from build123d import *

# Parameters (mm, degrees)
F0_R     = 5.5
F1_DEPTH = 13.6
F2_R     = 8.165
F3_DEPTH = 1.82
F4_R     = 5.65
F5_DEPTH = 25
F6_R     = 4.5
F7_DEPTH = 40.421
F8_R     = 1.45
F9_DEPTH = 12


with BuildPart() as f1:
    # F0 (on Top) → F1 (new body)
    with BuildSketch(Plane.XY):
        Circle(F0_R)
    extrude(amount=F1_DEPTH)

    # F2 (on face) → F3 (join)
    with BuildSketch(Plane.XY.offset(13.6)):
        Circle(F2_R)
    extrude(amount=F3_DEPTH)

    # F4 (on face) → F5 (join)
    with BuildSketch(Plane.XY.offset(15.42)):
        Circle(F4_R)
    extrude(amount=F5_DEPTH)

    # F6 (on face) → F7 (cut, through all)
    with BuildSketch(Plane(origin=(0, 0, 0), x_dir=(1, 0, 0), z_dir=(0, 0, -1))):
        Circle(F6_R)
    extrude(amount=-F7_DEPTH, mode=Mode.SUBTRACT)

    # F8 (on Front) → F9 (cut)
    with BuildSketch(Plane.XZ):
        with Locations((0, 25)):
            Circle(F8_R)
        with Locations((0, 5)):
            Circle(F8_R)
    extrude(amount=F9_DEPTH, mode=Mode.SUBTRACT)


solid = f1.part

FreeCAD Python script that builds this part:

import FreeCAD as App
import Part
import Sketcher
Q = App.Units.Quantity

doc = App.newDocument("Part")
body = doc.addObject("PartDesign::Body", "Body")

# Sketch on XY plane
sketch1 = body.newObject("Sketcher::SketchObject", "Sketch")
sketch1.AttachmentSupport = (doc.getObject("XY_Plane"), [""])
sketch1.MapMode = "FlatFace"
sketch1.addGeometry(Part.Circle(App.Vector(0, 0, 0), App.Vector(0, 0, 1), 6), False)
sketch1.addConstraint(Sketcher.Constraint("Coincident", 0, 3, -1, 1))
sketch1.addConstraint(Sketcher.Constraint("Diameter", 0, Q("11 mm")))
pad1 = body.newObject("PartDesign::Pad", "Pad")
pad1.Profile = sketch1
pad1.Length = 13.6

# Sketch on XY plane
sketch2 = body.newObject("Sketcher::SketchObject", "Sketch001")
sketch2.AttachmentSupport = (doc.getObject("XY_Plane"), [""])
sketch2.MapMode = "FlatFace"
sketch2.AttachmentOffset = App.Placement(App.Vector(0, 0, 13.6), App.Rotation())
sketch2.addGeometry(Part.Circle(App.Vector(0, 0, 0), App.Vector(0, 0, 1), 8), False)
sketch2.addConstraint(Sketcher.Constraint("Coincident", 0, 3, -1, 1))
sketch2.addConstraint(Sketcher.Constraint("Diameter", 0, Q("16.33 mm")))
pad2 = body.newObject("PartDesign::Pad", "Pad001")
pad2.Profile = sketch2
pad2.Length = 1.82

# Sketch on XY plane
sketch3 = body.newObject("Sketcher::SketchObject", "Sketch002")
sketch3.AttachmentSupport = (doc.getObject("XY_Plane"), [""])
sketch3.MapMode = "FlatFace"
sketch3.AttachmentOffset = App.Placement(App.Vector(0, 0, 15.42), App.Rotation())
sketch3.addGeometry(Part.Circle(App.Vector(0, 0, 0), App.Vector(0, 0, 1), 6), False)
sketch3.addConstraint(Sketcher.Constraint("Coincident", 0, 3, -1, 1))
sketch3.addConstraint(Sketcher.Constraint("Diameter", 0, Q("11.3 mm")))
pad3 = body.newObject("PartDesign::Pad", "Pad002")
pad3.Profile = sketch3
pad3.Length = 25

# Sketch on XY plane
sketch4 = body.newObject("Sketcher::SketchObject", "Sketch003")
sketch4.AttachmentSupport = (doc.getObject("XY_Plane"), [""])
sketch4.MapMode = "FlatFace"
sketch4.addGeometry(Part.Circle(App.Vector(0, 0, 0), App.Vector(0, 0, 1), 4.5), False)
sketch4.addConstraint(Sketcher.Constraint("Coincident", 0, 3, -1, 1))
sketch4.addConstraint(Sketcher.Constraint("Diameter", 0, Q("9 mm")))
pocket1 = body.newObject("PartDesign::Pocket", "Pocket")
pocket1.Profile = sketch4
pocket1.Type = "ThroughAll"
pocket1.Reversed = True

# Sketch on XZ plane
sketch5 = body.newObject("Sketcher::SketchObject", "Sketch004")
sketch5.AttachmentSupport = (doc.getObject("XZ_Plane"), [""])
sketch5.MapMode = "FlatFace"
sketch5.addGeometry(Part.Circle(App.Vector(0, 25, 0), App.Vector(0, 0, 1), 1.4), False)
sketch5.addGeometry(Part.Circle(App.Vector(0, 5, 0), App.Vector(0, 0, 1), 1.4), False)
sketch5.addConstraint(Sketcher.Constraint("Equal", 0, 1))
sketch5.addConstraint(Sketcher.Constraint("PointOnObject", 0, 3, -2))
sketch5.addConstraint(Sketcher.Constraint("PointOnObject", 1, 3, -2))
sketch5.addConstraint(Sketcher.Constraint("Diameter", 0, Q("2.9 mm")))
sketch5.addConstraint(Sketcher.Constraint("DistanceY", -1, 1, 0, 3, Q("25 mm")))
sketch5.addConstraint(Sketcher.Constraint("DistanceY", -1, 1, 1, 3, Q("5 mm")))
pocket2 = body.newObject("PartDesign::Pocket", "Pocket001")
pocket2.Profile = sketch5
pocket2.Length = 12
pocket2.Reversed = True

doc.recompute()
